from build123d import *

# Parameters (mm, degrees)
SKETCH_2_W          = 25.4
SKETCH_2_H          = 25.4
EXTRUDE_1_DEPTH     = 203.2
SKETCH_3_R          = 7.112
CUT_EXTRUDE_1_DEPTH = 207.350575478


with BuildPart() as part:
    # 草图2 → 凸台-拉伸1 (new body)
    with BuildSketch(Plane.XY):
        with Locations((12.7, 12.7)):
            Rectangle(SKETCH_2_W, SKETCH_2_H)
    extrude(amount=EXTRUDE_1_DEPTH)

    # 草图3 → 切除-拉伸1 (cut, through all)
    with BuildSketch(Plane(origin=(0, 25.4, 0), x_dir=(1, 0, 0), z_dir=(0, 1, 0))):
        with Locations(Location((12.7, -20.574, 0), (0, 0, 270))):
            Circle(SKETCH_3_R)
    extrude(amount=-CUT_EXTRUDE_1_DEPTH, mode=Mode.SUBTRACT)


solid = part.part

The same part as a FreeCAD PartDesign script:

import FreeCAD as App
import Part
import Sketcher
Q = App.Units.Quantity


def add_polygon(sketch, points):
    """Adds a closed chain of lines whose ends are joined by coincident constraints."""
    first, n = sketch.GeometryCount, len(points)
    for a, b in zip(points, points[1:] + points[:1]):
        sketch.addGeometry(Part.LineSegment(App.Vector(*a, 0), App.Vector(*b, 0)), False)
    for i in range(n):
        sketch.addConstraint(Sketcher.Constraint("Coincident", first + i, 2, first + (i + 1) % n, 1))

doc = App.newDocument("Part")
body = doc.addObject("PartDesign::Body", "Body")

sketch1 = doc.addObject("Sketcher::SketchObject", "Sketch")
body.addObject(sketch1)
sketch1.AttachmentSupport = (doc.XY_Plane, [""])
sketch1.MapMode = "FlatFace"
add_polygon(sketch1, [(0, 25.4), (0, 0), (25.4, 0), (25.4, 25.4)])
sketch1.addConstraint(Sketcher.Constraint("Vertical", 0))
sketch1.addConstraint(Sketcher.Constraint("Horizontal", 1))
sketch1.addConstraint(Sketcher.Constraint("Vertical", 2))
sketch1.addConstraint(Sketcher.Constraint("Horizontal", 3))
sketch1.addConstraint(Sketcher.Constraint("Coincident", 0, 2, -1, 1))
sketch1.addConstraint(Sketcher.Constraint("Equal", 3, 0))
sketch1.addConstraint(Sketcher.Constraint("DistanceX", 1, 1, 1, 2, Q("1 in")))
pad1 = doc.addObject("PartDesign::Pad", "Pad")
body.addObject(pad1)
pad1.Profile = sketch1
pad1.Length = Q("8 in")

sketch2 = doc.addObject("Sketcher::SketchObject", "Sketch001")
body.addObject(sketch2)
sketch2.AttachmentSupport = (doc.XZ_Plane, [""])
sketch2.MapMode = "FlatFace"
sketch2.AttachmentOffset = App.Placement(App.Vector(0, 0, -1 * 25.4), App.Rotation())
sketch2.addGeometry(Part.Circle(App.Vector(12.7, 20.574, 0), App.Vector(0, 0, 1), 7.112), False)
sketch2.addConstraint(Sketcher.Constraint("Diameter", 0, Q("0.56 in")))
sketch2.addConstraint(Sketcher.Constraint("DistanceX", -1, 1, 0, 3, Q("0.5 in")))
sketch2.addConstraint(Sketcher.Constraint("DistanceY", -1, 1, 0, 3, Q("0.81 in")))
pocket1 = doc.addObject("PartDesign::Pocket", "Pocket")
body.addObject(pocket1)
pocket1.Profile = sketch2
pocket1.Type = "ThroughAll"
pocket1.Reversed = True

doc.recompute()
